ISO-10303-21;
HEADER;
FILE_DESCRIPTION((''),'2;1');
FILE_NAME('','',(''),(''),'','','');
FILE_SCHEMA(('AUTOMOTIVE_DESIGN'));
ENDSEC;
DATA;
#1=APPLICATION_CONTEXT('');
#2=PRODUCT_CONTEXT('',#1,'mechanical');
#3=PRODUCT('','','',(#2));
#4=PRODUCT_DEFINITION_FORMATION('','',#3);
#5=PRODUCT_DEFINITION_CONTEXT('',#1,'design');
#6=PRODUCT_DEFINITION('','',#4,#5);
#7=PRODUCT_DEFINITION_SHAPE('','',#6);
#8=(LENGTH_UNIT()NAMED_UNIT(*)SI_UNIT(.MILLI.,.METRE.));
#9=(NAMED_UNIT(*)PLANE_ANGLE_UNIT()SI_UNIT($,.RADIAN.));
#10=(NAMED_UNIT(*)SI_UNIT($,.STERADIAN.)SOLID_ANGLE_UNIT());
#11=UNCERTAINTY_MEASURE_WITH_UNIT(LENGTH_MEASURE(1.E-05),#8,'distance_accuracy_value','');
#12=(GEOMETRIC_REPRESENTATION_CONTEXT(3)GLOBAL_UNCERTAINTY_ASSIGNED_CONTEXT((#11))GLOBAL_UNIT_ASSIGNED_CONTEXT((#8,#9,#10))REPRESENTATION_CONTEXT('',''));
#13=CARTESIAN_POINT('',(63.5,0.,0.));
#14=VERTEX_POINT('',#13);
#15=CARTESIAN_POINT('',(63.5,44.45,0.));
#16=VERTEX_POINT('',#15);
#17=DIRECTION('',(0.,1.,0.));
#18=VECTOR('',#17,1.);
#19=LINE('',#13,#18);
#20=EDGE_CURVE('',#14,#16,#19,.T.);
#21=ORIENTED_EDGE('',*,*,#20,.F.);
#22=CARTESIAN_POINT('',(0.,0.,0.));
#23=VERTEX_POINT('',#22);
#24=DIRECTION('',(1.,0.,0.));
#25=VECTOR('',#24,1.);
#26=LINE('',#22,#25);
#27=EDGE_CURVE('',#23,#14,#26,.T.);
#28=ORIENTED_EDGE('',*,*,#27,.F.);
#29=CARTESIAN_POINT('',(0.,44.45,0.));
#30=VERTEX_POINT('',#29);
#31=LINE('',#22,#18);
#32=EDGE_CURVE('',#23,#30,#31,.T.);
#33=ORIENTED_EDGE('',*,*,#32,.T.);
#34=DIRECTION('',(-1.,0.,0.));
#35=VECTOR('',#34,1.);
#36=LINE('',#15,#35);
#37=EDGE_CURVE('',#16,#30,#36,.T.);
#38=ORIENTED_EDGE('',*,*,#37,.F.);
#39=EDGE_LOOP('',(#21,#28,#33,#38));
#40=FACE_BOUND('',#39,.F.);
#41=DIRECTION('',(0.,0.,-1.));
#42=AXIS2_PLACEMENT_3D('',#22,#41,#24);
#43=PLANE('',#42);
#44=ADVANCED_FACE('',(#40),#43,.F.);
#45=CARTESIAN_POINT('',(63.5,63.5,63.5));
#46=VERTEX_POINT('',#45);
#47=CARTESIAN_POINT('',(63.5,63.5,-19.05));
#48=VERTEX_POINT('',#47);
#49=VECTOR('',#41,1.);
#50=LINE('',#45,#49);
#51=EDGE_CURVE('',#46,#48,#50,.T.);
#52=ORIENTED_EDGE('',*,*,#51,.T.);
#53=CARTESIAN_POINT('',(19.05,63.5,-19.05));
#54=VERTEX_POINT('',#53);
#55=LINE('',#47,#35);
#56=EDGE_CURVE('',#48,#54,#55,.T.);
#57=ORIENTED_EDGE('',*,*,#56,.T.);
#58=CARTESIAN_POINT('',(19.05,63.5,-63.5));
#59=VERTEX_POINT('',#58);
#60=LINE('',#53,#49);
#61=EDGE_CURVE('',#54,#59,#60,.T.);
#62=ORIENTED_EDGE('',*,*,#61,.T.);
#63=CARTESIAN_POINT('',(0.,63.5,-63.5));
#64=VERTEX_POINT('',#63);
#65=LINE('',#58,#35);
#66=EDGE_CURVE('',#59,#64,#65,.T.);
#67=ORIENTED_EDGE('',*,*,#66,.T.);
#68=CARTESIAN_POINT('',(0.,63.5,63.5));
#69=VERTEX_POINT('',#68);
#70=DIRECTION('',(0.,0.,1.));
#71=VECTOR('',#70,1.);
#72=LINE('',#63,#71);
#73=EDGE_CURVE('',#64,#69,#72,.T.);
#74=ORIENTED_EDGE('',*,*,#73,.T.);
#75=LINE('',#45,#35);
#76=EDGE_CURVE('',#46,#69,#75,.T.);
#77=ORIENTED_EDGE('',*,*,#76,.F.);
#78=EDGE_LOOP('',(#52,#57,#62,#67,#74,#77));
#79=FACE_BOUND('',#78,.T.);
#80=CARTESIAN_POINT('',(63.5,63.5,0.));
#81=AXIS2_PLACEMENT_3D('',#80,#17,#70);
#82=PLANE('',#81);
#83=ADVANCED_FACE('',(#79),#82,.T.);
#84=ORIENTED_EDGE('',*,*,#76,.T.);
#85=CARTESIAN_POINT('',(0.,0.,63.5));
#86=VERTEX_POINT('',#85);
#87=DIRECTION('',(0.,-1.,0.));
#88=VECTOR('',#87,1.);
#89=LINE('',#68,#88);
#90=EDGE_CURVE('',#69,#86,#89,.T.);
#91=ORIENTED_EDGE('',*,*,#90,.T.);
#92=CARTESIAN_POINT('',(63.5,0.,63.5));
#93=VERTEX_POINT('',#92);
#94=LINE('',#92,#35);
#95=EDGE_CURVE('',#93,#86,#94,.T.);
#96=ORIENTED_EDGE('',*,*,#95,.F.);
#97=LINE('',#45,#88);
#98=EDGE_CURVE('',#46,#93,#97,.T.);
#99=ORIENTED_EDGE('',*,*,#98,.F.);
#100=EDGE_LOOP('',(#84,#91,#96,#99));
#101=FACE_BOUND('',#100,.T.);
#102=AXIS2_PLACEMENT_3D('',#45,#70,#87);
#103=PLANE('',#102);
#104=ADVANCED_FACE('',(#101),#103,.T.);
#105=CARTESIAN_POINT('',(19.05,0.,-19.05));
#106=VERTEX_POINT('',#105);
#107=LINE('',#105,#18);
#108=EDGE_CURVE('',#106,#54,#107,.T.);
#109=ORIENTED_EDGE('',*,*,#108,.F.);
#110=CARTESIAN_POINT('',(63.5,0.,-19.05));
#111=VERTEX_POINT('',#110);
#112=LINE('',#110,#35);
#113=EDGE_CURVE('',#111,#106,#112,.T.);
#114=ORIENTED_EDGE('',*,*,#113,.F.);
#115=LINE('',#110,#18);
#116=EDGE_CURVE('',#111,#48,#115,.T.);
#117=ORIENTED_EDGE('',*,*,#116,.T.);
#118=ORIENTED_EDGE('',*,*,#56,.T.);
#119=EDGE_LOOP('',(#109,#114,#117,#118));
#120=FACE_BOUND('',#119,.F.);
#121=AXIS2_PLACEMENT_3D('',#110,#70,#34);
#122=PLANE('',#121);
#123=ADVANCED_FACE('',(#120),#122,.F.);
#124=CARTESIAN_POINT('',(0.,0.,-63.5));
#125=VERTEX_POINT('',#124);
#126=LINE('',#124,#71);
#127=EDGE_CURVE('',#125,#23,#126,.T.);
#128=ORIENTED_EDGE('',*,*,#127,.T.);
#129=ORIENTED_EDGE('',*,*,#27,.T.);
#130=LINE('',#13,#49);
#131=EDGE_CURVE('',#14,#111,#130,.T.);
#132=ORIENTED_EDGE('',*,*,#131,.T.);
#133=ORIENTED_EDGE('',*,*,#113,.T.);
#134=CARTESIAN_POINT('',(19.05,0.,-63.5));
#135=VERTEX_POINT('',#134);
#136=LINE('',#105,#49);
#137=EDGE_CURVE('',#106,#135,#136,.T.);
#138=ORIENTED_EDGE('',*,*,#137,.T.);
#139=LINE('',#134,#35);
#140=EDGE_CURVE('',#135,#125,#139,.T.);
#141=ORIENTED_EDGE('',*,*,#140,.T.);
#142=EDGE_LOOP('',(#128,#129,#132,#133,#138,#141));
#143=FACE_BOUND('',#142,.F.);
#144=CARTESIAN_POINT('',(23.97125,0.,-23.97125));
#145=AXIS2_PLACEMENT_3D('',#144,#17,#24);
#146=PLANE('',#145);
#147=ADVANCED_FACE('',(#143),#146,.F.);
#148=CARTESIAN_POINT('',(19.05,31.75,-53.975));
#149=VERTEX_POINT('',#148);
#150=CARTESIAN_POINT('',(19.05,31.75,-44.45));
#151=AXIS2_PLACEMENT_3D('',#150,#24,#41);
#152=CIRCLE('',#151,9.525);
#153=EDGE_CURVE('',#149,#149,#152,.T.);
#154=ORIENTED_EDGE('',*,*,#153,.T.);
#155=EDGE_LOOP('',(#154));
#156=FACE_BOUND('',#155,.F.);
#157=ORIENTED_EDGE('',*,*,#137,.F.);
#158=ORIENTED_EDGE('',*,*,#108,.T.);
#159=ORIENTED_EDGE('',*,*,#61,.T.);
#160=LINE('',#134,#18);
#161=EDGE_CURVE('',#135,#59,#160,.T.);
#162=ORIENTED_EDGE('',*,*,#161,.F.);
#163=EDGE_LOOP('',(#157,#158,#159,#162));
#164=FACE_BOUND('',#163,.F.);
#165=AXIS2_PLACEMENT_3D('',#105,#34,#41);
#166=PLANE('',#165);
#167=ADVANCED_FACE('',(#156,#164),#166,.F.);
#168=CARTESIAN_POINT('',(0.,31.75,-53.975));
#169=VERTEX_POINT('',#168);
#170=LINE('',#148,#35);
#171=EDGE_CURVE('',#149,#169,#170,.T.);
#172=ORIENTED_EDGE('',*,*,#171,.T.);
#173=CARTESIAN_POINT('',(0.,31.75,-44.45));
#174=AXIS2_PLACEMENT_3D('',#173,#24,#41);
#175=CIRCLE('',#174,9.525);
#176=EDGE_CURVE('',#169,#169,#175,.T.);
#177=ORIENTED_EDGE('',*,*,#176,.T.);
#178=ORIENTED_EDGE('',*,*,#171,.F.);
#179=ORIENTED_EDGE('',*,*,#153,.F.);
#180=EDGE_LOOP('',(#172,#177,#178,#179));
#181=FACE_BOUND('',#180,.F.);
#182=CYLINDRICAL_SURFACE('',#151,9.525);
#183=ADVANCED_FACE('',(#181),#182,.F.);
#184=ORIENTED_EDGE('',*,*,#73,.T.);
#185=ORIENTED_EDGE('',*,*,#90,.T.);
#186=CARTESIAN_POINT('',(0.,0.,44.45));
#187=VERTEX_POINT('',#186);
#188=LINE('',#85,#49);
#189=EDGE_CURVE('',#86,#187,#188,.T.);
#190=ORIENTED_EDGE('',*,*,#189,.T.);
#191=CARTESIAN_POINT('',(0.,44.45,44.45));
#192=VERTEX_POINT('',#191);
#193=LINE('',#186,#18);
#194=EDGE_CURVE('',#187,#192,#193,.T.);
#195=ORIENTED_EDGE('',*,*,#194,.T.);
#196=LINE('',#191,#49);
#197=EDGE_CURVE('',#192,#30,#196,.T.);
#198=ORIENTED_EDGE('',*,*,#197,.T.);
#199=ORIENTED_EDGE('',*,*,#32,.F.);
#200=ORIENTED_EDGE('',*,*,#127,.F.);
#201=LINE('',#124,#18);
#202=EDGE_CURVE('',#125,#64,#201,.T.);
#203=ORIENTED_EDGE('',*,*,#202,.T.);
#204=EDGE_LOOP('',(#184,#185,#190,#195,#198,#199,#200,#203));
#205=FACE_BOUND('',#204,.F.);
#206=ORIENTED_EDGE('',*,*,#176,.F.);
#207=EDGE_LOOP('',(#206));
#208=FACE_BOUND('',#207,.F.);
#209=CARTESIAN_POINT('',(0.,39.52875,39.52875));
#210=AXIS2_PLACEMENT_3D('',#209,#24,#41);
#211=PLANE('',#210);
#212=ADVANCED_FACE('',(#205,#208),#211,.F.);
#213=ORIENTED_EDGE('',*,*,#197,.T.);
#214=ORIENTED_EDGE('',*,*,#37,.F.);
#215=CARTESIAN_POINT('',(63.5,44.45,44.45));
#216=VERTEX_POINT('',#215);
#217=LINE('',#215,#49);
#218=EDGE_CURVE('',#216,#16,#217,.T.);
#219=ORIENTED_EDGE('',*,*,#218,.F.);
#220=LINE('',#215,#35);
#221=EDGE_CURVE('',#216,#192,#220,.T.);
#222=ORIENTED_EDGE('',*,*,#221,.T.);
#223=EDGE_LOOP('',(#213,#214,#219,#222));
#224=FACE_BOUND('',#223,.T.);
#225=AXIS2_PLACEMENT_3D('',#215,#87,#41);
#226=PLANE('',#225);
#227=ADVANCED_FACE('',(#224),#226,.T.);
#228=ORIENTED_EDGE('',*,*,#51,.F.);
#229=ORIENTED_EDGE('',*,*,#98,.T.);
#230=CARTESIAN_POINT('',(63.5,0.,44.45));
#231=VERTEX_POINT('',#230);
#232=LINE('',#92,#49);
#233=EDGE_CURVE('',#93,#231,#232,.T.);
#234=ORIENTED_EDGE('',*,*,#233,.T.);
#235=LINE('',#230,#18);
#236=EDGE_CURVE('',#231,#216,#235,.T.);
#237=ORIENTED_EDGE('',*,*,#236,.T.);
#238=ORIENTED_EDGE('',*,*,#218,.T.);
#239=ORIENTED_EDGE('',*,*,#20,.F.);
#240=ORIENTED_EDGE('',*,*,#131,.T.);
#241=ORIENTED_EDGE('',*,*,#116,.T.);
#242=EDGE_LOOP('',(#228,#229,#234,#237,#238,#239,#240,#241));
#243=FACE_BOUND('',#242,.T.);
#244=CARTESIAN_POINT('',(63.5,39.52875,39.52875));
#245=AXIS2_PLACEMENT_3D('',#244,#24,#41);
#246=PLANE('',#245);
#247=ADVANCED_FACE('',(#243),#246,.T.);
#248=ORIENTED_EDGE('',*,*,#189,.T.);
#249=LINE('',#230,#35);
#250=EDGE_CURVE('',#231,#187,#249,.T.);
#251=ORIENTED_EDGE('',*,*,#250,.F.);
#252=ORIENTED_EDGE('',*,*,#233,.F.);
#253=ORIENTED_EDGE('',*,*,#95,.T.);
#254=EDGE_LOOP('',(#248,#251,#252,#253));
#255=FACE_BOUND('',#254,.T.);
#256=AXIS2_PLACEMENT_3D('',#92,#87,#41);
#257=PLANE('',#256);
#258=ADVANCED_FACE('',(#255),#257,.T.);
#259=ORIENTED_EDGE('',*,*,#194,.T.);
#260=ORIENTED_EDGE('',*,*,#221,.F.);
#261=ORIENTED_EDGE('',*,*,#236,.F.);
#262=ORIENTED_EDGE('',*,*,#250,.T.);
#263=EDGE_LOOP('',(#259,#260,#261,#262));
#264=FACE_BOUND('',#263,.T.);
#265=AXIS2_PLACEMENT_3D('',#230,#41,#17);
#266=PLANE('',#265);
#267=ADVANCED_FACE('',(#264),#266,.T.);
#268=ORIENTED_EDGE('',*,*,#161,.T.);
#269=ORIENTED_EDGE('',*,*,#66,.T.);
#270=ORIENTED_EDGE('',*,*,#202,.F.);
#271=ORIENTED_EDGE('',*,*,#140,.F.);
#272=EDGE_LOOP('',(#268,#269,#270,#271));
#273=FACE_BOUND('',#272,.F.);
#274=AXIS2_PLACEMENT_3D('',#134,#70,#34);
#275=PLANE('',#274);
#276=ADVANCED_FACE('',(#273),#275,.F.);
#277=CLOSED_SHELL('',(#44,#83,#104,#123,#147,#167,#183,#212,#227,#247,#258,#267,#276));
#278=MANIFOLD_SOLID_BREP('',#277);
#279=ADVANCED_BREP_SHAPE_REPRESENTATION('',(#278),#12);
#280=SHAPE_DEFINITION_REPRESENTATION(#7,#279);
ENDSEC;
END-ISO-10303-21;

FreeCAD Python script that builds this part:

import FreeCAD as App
import Part
import Sketcher
from FreeCAD import Vector
Q = App.Units.Quantity

doc = App.newDocument("Part")
body = doc.addObject("PartDesign::Body", "Body")

sketch1 = body.newObject("Sketcher::SketchObject", "Sketch")
sketch1.AttachmentSupport = (doc.getObject("XZ_Plane"), [""])
sketch1.MapMode = "FlatFace"
sketch1.addGeometry([
    Part.LineSegment(Vector(0, 0, 0), Vector(64, 0, 0)),
    Part.LineSegment(Vector(64, 0, 0), Vector(64, -19, 0)),
    Part.LineSegment(Vector(64, -19, 0), Vector(19, -19, 0)),
    Part.LineSegment(Vector(19, -19, 0), Vector(19, -64, 0)),
    Part.LineSegment(Vector(19, -64, 0), Vector(0, -64, 0)),
    Part.LineSegment(Vector(0, -64, 0), Vector(0, 0, 0)),
], False)
sketch1.addConstraint([
    Sketcher.Constraint("Coincident", 0, 2, 1, 1),
    Sketcher.Constraint("Coincident", 1, 2, 2, 1),
    Sketcher.Constraint("Coincident", 2, 2, 3, 1),
    Sketcher.Constraint("Coincident", 3, 2, 4, 1),
    Sketcher.Constraint("Coincident", 4, 2, 5, 1),
    Sketcher.Constraint("Coincident", 5, 2, 0, 1),
    Sketcher.Constraint("Horizontal", 0),
    Sketcher.Constraint("Vertical", 1),
    Sketcher.Constraint("Horizontal", 2),
    Sketcher.Constraint("Vertical", 3),
    Sketcher.Constraint("Horizontal", 4),
    Sketcher.Constraint("Vertical", 5),
    Sketcher.Constraint("Coincident", 5, 2, -1, 1),
    Sketcher.Constraint("Equal", 4, 1),
    Sketcher.Constraint("Equal", 2, 3),
    Sketcher.Constraint("DistanceX", 0, 1, 0, 2, Q("2.5 in")),
    Sketcher.Constraint("DistanceX", 2, 2, 2, 1, Q("1.75 in")),
])
pad1 = body.newObject("PartDesign::Pad", "Pad")
pad1.Profile = sketch1
pad1.Length = Q("2.5 in")
pad1.Reversed = True

sketch2 = body.newObject("Sketcher::SketchObject", "Sketch001")
sketch2.AttachmentSupport = (doc.getObject("YZ_Plane"), [""])
sketch2.MapMode = "FlatFace"
sketch2.AttachmentOffset = App.Placement(Vector(0, 0, 2.5 * 25.4), App.Rotation())
sketch2.addGeometry([
    Part.LineSegment(Vector(64, 0, 0), Vector(64, 64, 0)),
    Part.LineSegment(Vector(64, 64, 0), Vector(0, 64, 0)),
    Part.LineSegment(Vector(0, 64, 0), Vector(0, 44, 0)),
    Part.LineSegment(Vector(0, 44, 0), Vector(44, 44, 0)),
    Part.LineSegment(Vector(44, 44, 0), Vector(44, 0, 0)),
    Part.LineSegment(Vector(44, 0, 0), Vector(64, 0, 0)),
], False)
sketch2.addConstraint([
    Sketcher.Constraint("Coincident", 0, 2, 1, 1),
    Sketcher.Constraint("Coincident", 1, 2, 2, 1),
    Sketcher.Constraint("Coincident", 2, 2, 3, 1),
    Sketcher.Constraint("Coincident", 3, 2, 4, 1),
    Sketcher.Constraint("Coincident", 4, 2, 5, 1),
    Sketcher.Constraint("Coincident", 5, 2, 0, 1),
    Sketcher.Constraint("Vertical", 0),
    Sketcher.Constraint("Horizontal", 1),
    Sketcher.Constraint("Vertical", 2),
    Sketcher.Constraint("Horizontal", 3),
    Sketcher.Constraint("Vertical", 4),
    Sketcher.Constraint("Horizontal", 5),
    Sketcher.Constraint("PointOnObject", 1, 2, -2),
    Sketcher.Constraint("PointOnObject", 4, 2, -1),
    Sketcher.Constraint("Equal", 1, 0),
    Sketcher.Constraint("Equal", 5, 2),
    Sketcher.Constraint("DistanceX", 1, 2, 1, 1, Q("2.5 in")),
    Sketcher.Constraint("DistanceX", 3, 1, 3, 2, Q("1.75 in")),
])
pad2 = body.newObject("PartDesign::Pad", "Pad001")
pad2.Profile = sketch2
pad2.Length = Q("2.5 in")
pad2.Reversed = True

sketch3 = body.newObject("Sketcher::SketchObject", "Sketch002")
sketch3.AttachmentSupport = (doc.getObject("YZ_Plane"), [""])
sketch3.MapMode = "FlatFace"
sketch3.AttachmentOffset = App.Placement(Vector(0, 0, 0.75 * 25.4), App.Rotation())
sketch3.addGeometry(Part.Circle(Vector(32, -44, 0), Vector(0, 0, 1), 10), False)
sketch3.addConstraint([
    Sketcher.Constraint("Diameter", 0, Q("0.75 in")),
    Sketcher.Constraint("DistanceX", -1, 1, 0, 3, Q("1.25 in")),
    Sketcher.Constraint("DistanceY", 0, 3, -1, 1, Q("1.75 in")),
])
pocket1 = body.newObject("PartDesign::Pocket", "Pocket")
pocket1.Profile = sketch3
pocket1.Type = "ThroughAll"

doc.recompute()
